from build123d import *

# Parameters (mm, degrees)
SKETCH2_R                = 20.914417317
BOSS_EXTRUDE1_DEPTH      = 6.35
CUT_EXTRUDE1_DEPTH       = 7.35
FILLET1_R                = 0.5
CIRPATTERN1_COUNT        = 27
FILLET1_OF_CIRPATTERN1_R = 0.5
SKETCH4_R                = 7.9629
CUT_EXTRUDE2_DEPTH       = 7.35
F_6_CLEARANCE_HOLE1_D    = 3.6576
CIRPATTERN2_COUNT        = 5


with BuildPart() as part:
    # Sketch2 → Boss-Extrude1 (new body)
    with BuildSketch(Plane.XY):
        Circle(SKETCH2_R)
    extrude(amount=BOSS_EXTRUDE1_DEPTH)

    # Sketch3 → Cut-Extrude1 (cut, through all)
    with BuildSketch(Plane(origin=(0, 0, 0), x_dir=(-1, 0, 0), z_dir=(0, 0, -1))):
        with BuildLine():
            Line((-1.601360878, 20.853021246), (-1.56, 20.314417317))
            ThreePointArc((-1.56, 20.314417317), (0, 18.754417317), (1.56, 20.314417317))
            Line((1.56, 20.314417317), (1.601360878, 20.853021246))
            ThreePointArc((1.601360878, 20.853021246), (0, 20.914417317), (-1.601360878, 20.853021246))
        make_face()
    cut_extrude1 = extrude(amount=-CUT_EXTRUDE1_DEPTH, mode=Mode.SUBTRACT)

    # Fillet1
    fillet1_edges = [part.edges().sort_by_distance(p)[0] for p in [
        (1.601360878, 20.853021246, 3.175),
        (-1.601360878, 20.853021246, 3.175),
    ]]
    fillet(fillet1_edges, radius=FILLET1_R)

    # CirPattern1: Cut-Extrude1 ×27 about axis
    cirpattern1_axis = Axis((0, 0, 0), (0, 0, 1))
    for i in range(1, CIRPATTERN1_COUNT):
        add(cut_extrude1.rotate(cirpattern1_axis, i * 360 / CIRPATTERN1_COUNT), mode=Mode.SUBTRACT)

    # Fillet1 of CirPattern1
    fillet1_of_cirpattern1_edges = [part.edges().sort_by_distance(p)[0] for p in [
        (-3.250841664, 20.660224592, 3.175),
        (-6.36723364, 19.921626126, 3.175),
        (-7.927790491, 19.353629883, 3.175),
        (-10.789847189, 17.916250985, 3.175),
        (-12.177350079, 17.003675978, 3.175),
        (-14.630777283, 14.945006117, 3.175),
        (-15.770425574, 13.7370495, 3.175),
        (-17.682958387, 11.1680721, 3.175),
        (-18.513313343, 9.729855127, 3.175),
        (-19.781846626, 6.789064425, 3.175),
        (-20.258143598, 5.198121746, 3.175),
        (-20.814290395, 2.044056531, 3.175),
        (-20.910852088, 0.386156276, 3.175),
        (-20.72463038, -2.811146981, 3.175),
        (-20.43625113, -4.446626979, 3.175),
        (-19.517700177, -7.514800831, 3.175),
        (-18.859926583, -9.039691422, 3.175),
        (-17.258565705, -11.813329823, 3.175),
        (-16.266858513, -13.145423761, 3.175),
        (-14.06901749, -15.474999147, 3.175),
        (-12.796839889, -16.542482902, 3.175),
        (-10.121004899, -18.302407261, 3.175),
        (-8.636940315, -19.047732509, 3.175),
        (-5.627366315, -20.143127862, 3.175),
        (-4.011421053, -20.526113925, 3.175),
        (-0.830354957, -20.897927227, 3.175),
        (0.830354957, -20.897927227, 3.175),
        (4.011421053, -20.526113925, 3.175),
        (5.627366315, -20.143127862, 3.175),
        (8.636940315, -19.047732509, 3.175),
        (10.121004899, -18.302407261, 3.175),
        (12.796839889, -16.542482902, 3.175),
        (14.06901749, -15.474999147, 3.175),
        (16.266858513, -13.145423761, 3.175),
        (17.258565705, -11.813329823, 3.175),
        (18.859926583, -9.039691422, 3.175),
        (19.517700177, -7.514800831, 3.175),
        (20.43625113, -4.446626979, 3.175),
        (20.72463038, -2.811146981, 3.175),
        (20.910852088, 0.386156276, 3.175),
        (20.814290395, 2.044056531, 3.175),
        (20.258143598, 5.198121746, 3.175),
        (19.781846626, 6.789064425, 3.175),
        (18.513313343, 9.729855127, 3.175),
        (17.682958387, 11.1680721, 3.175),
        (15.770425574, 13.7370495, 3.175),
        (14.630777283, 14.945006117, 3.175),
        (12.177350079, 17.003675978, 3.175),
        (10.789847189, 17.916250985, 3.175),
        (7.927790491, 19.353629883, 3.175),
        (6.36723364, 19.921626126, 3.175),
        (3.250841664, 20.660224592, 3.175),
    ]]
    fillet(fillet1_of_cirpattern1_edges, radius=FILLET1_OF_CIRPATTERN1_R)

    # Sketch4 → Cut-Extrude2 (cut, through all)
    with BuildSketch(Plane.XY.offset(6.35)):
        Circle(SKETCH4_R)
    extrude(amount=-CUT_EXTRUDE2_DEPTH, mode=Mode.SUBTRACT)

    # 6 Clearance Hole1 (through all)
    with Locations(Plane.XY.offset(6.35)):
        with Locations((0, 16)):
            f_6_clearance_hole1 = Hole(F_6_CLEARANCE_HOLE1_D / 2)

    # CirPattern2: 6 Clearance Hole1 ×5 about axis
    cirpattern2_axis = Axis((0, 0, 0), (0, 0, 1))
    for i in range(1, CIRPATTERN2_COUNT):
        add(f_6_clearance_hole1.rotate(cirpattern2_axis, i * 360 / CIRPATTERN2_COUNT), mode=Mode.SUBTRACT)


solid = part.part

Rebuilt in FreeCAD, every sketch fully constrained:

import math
import FreeCAD as App
import Part
import Sketcher
Q = App.Units.Quantity


def edges_at(feature, points):
    """Names of the edges that pass closest to the given points."""
    edges = feature.Shape.Edges
    near = lambda p: min(range(len(edges)), key=lambda i: edges[i].distToShape(Part.Vertex(*p))[0])
    return sorted({f"Edge{near(p) + 1}" for p in points})

doc = App.newDocument("Part")
body = doc.addObject("PartDesign::Body", "Body")

sketch1 = doc.addObject("Sketcher::SketchObject", "Sketch")
body.addObject(sketch1)
sketch1.AttachmentSupport = (doc.XY_Plane, [""])
sketch1.MapMode = "FlatFace"
sketch1.addGeometry(Part.Circle(App.Vector(0, 0, 0), App.Vector(0, 0, 1), 21), False)
sketch1.addConstraint([
    Sketcher.Constraint("Coincident", 0, 3, -1, 1),
    Sketcher.Constraint("Diameter", 0, 41.828835),
])
pad1 = doc.addObject("PartDesign::Pad", "Pad")
body.addObject(pad1)
pad1.Profile = sketch1
pad1.Length = Q("0.25 in")

sketch2 = doc.addObject("Sketcher::SketchObject", "Sketch001")
body.addObject(sketch2)
sketch2.AttachmentSupport = (doc.XY_Plane, [""])
sketch2.MapMode = "FlatFace"
sketch2.addGeometry([
    Part.LineSegment(App.Vector(1.6, 20.9, 0), App.Vector(1.6, 20.3, 0)),
    Part.ArcOfCircle(Part.Circle(App.Vector(0, 20.3, 0), App.Vector(0, 0, 1), 1.6), math.radians(180), math.radians(360)),
    Part.LineSegment(App.Vector(-1.6, 20.3, 0), App.Vector(-1.6, 20.9, 0)),
    Part.ArcOfCircle(Part.Circle(App.Vector(0, 0, 0), App.Vector(0, 0, 1), 20.9), math.radians(85.61), math.radians(94.39)),
], False)
sketch2.addConstraint([
    Sketcher.Constraint("Coincident", 0, 2, 1, 2),
    Sketcher.Constraint("Coincident", 1, 1, 2, 1),
    Sketcher.Constraint("Coincident", 2, 2, 3, 2),
    Sketcher.Constraint("Coincident", 3, 1, 0, 1),
    Sketcher.Constraint("Coincident", 3, 3, -1, 1),
    Sketcher.Constraint("Symmetric", 0, 2, 1, 1, -2),
    Sketcher.Constraint("Horizontal", 1, 3, 0, 2),
    Sketcher.Constraint("Horizontal", 2, 2, 3, 1),
    Sketcher.Constraint("Radius", 1, 1.56),
    Sketcher.Constraint("Radius", 3, 20.914418),
    Sketcher.Constraint("Distance", 0, 0.54019),
    Sketcher.Constraint("DistanceX", 2, 2, -1, 1, 1.601361),
])
pocket1 = doc.addObject("PartDesign::Pocket", "Pocket")
body.addObject(pocket1)
pocket1.Profile = sketch2
pocket1.Type = "ThroughAll"
pocket1.Reversed = True
doc.recompute()

fillet = doc.addObject("PartDesign::Fillet", "Fillet")
body.addObject(fillet)
fillet.Base = (pocket1, edges_at(pocket1, [(1.601, 20.853, 3.175), (-1.601, 20.853, 3.175)]))
fillet.Radius = 0.5
doc.recompute()

polarpattern = doc.addObject("PartDesign::PolarPattern", "PolarPattern")
body.addObject(polarpattern)
polarpattern.Originals = [pocket1]
polarpattern.Axis = (doc.Z_Axis, [""])
polarpattern.Angle = 360
polarpattern.Occurrences = 27
body.Tip = polarpattern
doc.recompute()

fillet2 = doc.addObject("PartDesign::Fillet", "Fillet001")
body.addObject(fillet2)
fillet2.Base = (polarpattern, edges_at(polarpattern, [
    (-3.251, 20.66, 3.175),
    (-6.367, 19.922, 3.175),
    (-7.928, 19.354, 3.175),
    (-10.79, 17.916, 3.175),
    (-12.177, 17.004, 3.175),
    (-14.631, 14.945, 3.175),
    (-15.77, 13.737, 3.175),
    (-17.683, 11.168, 3.175),
    (-18.513, 9.73, 3.175),
    (-19.782, 6.789, 3.175),
    (-20.258, 5.198, 3.175),
    (-20.814, 2.044, 3.175),
    (-20.911, 0.386, 3.175),
    (-20.725, -2.811, 3.175),
    (-20.436, -4.447, 3.175),
    (-19.518, -7.515, 3.175),
    (-18.86, -9.04, 3.175),
    (-17.259, -11.813, 3.175),
    (-16.267, -13.145, 3.175),
    (-14.069, -15.475, 3.175),
    (-12.797, -16.542, 3.175),
    (-10.121, -18.302, 3.175),
    (-8.637, -19.048, 3.175),
    (-5.627, -20.143, 3.175),
    (-4.011, -20.526, 3.175),
    (-0.83, -20.898, 3.175),
    (0.83, -20.898, 3.175),
    (4.011, -20.526, 3.175),
    (5.627, -20.143, 3.175),
    (8.637, -19.048, 3.175),
    (10.121, -18.302, 3.175),
    (12.797, -16.542, 3.175),
    (14.069, -15.475, 3.175),
    (16.267, -13.145, 3.175),
    (17.259, -11.813, 3.175),
    (18.86, -9.04, 3.175),
    (19.518, -7.515, 3.175),
    (20.436, -4.447, 3.175),
    (20.725, -2.811, 3.175),
    (20.911, 0.386, 3.175),
    (20.814, 2.044, 3.175),
    (20.258, 5.198, 3.175),
    (19.782, 6.789, 3.175),
    (18.513, 9.73, 3.175),
    (17.683, 11.168, 3.175),
    (15.77, 13.737, 3.175),
    (14.631, 14.945, 3.175),
    (12.177, 17.004, 3.175),
    (10.79, 17.916, 3.175),
    (7.928, 19.354, 3.175),
    (6.367, 19.922, 3.175),
    (3.251, 20.66, 3.175),
]))
fillet2.Radius = 0.5

sketch3 = doc.addObject("Sketcher::SketchObject", "Sketch002")
body.addObject(sketch3)
sketch3.AttachmentSupport = (doc.XY_Plane, [""])
sketch3.MapMode = "FlatFace"
sketch3.AttachmentOffset = App.Placement(App.Vector(0, 0, 0.25 * 25.4), App.Rotation())
sketch3.addGeometry(Part.Circle(App.Vector(0, 0, 0), App.Vector(0, 0, 1), 8), False)
sketch3.addConstraint([
    Sketcher.Constraint("Coincident", 0, 3, -1, 1),
    Sketcher.Constraint("Diameter", 0, Q("0.627 in")),
])
pocket2 = doc.addObject("PartDesign::Pocket", "Pocket001")
body.addObject(pocket2)
pocket2.Profile = sketch3
pocket2.Type = "ThroughAll"

sketch4 = doc.addObject("Sketcher::SketchObject", "Sketch003")
body.addObject(sketch4)
sketch4.AttachmentSupport = (doc.XY_Plane, [""])
sketch4.MapMode = "FlatFace"
sketch4.AttachmentOffset = App.Placement(App.Vector(0, 0, 0.25 * 25.4), App.Rotation())
sketch4.addGeometry(Part.Circle(App.Vector(0, 16, 0), App.Vector(0, 0, 1), 1.8), False)
sketch4.addConstraint([
    Sketcher.Constraint("PointOnObject", 0, 3, -2),
    Sketcher.Constraint("Diameter", 0, Q("0.144 in")),
    Sketcher.Constraint("DistanceY", -1, 1, 0, 3, 16.0),
])
doc.recompute()
hole = doc.addObject("PartDesign::Hole", "Hole")
body.addObject(hole)
hole.Profile = sketch4
hole.ThreadType = "None"
hole.Diameter = Q("0.144 in")
hole.DepthType = "ThroughAll"
doc.recompute()

polarpattern2 = doc.addObject("PartDesign::PolarPattern", "PolarPattern001")
body.addObject(polarpattern2)
polarpattern2.Originals = [hole]
polarpattern2.Axis = (doc.Z_Axis, [""])
polarpattern2.Angle = 360
polarpattern2.Occurrences = 5
body.Tip = polarpattern2

doc.recompute()
